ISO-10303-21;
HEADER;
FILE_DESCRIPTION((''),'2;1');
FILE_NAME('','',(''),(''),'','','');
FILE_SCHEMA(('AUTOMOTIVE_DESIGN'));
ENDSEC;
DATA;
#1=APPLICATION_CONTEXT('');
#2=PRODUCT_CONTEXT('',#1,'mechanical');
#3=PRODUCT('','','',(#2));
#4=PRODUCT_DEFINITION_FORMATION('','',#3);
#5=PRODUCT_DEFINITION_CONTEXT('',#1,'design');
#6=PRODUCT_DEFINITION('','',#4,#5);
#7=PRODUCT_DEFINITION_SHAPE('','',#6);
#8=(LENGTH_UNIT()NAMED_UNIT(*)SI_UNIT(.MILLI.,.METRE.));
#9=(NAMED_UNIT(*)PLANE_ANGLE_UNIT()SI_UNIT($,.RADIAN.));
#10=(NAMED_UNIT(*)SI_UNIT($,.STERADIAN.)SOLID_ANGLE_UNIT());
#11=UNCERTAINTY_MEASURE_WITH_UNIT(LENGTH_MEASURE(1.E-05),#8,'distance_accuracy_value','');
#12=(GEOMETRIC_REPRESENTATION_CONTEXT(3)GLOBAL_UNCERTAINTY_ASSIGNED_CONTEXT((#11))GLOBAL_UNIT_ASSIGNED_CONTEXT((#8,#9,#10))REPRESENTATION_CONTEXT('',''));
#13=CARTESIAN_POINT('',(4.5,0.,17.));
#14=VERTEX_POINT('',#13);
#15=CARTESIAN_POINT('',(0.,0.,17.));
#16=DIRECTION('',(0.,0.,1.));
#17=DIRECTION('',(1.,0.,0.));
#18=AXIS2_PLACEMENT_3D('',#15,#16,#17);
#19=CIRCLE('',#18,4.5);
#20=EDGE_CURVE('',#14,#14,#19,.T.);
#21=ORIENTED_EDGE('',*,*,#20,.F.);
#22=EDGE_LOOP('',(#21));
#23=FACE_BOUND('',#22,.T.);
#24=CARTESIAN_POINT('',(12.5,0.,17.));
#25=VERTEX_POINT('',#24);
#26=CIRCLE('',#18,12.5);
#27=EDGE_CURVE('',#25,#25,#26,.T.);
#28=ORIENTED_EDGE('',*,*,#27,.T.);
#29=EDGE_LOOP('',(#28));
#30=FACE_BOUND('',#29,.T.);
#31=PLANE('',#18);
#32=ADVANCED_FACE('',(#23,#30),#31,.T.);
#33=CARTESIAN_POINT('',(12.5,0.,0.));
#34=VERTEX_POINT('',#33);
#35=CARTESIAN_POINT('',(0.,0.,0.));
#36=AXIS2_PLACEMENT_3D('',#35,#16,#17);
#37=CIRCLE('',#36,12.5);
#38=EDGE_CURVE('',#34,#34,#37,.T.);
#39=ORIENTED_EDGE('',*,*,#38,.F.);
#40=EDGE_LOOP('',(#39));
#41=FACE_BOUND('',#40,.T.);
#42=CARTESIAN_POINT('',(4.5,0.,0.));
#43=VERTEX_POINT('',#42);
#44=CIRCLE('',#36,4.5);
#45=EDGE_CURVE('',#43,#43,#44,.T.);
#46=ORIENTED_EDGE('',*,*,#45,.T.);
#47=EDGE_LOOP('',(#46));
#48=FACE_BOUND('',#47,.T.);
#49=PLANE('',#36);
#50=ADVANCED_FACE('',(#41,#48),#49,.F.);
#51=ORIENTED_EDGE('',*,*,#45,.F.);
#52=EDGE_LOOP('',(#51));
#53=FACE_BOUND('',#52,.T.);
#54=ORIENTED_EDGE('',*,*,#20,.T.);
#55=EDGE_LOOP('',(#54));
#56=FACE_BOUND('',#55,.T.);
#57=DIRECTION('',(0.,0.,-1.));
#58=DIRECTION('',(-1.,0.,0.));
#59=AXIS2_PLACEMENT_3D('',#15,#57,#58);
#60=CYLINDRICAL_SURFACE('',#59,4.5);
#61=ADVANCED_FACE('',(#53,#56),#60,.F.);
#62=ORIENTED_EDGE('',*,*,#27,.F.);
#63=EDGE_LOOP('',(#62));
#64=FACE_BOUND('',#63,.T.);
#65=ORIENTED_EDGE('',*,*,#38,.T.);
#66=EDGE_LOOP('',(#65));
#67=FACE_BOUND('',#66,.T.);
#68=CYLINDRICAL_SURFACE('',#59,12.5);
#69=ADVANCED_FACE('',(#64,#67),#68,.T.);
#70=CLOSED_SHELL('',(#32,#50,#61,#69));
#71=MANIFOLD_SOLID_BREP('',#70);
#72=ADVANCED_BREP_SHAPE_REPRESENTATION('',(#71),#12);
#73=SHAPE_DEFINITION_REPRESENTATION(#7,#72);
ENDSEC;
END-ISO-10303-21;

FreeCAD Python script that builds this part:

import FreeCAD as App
import Part
import Sketcher

V = App.Vector
Q = App.Units.Quantity

doc = App.newDocument("Part")
params = doc.addObject("Spreadsheet::Sheet", "Params")
for row, (alias, value) in enumerate([
    ("sketch1_diameter", "25 mm"),
    ("sketch1_diameter2", "9 mm"),
    ("pad1_length", "17 mm"),
], start=1):
    params.set(f"A{row}", alias)
    params.set(f"B{row}", "=" + value)
    params.setAlias(f"B{row}", alias)

body = doc.addObject("PartDesign::Body", "Body")

sketch1 = body.newObject("Sketcher::SketchObject", "Sketch")
sketch1.AttachmentSupport = (doc.getObject("XY_Plane"), [""])
sketch1.MapMode = "FlatFace"
sketch1.addGeometry([
    Part.Circle(V(0, 0, 0), V(0, 0, 1), 12.5),
    Part.Circle(V(0, 0, 0), V(0, 0, 1), 4.5),
], False)
sketch1.addConstraint([
    Sketcher.Constraint("Coincident", 0, 3, -1, 1),
    Sketcher.Constraint("Coincident", 1, 3, -1, 1),
    Sketcher.Constraint("Diameter", 0, Q("25 mm")),
    Sketcher.Constraint("Diameter", 1, Q("9 mm")),
])
sketch1.setExpression("Constraints[2]", "Params.sketch1_diameter")
sketch1.setExpression("Constraints[3]", "Params.sketch1_diameter2")
pad1 = body.newObject("PartDesign::Pad", "Pad")
pad1.Profile = sketch1
pad1.setExpression("Length", "Params.pad1_length")

doc.recompute()
